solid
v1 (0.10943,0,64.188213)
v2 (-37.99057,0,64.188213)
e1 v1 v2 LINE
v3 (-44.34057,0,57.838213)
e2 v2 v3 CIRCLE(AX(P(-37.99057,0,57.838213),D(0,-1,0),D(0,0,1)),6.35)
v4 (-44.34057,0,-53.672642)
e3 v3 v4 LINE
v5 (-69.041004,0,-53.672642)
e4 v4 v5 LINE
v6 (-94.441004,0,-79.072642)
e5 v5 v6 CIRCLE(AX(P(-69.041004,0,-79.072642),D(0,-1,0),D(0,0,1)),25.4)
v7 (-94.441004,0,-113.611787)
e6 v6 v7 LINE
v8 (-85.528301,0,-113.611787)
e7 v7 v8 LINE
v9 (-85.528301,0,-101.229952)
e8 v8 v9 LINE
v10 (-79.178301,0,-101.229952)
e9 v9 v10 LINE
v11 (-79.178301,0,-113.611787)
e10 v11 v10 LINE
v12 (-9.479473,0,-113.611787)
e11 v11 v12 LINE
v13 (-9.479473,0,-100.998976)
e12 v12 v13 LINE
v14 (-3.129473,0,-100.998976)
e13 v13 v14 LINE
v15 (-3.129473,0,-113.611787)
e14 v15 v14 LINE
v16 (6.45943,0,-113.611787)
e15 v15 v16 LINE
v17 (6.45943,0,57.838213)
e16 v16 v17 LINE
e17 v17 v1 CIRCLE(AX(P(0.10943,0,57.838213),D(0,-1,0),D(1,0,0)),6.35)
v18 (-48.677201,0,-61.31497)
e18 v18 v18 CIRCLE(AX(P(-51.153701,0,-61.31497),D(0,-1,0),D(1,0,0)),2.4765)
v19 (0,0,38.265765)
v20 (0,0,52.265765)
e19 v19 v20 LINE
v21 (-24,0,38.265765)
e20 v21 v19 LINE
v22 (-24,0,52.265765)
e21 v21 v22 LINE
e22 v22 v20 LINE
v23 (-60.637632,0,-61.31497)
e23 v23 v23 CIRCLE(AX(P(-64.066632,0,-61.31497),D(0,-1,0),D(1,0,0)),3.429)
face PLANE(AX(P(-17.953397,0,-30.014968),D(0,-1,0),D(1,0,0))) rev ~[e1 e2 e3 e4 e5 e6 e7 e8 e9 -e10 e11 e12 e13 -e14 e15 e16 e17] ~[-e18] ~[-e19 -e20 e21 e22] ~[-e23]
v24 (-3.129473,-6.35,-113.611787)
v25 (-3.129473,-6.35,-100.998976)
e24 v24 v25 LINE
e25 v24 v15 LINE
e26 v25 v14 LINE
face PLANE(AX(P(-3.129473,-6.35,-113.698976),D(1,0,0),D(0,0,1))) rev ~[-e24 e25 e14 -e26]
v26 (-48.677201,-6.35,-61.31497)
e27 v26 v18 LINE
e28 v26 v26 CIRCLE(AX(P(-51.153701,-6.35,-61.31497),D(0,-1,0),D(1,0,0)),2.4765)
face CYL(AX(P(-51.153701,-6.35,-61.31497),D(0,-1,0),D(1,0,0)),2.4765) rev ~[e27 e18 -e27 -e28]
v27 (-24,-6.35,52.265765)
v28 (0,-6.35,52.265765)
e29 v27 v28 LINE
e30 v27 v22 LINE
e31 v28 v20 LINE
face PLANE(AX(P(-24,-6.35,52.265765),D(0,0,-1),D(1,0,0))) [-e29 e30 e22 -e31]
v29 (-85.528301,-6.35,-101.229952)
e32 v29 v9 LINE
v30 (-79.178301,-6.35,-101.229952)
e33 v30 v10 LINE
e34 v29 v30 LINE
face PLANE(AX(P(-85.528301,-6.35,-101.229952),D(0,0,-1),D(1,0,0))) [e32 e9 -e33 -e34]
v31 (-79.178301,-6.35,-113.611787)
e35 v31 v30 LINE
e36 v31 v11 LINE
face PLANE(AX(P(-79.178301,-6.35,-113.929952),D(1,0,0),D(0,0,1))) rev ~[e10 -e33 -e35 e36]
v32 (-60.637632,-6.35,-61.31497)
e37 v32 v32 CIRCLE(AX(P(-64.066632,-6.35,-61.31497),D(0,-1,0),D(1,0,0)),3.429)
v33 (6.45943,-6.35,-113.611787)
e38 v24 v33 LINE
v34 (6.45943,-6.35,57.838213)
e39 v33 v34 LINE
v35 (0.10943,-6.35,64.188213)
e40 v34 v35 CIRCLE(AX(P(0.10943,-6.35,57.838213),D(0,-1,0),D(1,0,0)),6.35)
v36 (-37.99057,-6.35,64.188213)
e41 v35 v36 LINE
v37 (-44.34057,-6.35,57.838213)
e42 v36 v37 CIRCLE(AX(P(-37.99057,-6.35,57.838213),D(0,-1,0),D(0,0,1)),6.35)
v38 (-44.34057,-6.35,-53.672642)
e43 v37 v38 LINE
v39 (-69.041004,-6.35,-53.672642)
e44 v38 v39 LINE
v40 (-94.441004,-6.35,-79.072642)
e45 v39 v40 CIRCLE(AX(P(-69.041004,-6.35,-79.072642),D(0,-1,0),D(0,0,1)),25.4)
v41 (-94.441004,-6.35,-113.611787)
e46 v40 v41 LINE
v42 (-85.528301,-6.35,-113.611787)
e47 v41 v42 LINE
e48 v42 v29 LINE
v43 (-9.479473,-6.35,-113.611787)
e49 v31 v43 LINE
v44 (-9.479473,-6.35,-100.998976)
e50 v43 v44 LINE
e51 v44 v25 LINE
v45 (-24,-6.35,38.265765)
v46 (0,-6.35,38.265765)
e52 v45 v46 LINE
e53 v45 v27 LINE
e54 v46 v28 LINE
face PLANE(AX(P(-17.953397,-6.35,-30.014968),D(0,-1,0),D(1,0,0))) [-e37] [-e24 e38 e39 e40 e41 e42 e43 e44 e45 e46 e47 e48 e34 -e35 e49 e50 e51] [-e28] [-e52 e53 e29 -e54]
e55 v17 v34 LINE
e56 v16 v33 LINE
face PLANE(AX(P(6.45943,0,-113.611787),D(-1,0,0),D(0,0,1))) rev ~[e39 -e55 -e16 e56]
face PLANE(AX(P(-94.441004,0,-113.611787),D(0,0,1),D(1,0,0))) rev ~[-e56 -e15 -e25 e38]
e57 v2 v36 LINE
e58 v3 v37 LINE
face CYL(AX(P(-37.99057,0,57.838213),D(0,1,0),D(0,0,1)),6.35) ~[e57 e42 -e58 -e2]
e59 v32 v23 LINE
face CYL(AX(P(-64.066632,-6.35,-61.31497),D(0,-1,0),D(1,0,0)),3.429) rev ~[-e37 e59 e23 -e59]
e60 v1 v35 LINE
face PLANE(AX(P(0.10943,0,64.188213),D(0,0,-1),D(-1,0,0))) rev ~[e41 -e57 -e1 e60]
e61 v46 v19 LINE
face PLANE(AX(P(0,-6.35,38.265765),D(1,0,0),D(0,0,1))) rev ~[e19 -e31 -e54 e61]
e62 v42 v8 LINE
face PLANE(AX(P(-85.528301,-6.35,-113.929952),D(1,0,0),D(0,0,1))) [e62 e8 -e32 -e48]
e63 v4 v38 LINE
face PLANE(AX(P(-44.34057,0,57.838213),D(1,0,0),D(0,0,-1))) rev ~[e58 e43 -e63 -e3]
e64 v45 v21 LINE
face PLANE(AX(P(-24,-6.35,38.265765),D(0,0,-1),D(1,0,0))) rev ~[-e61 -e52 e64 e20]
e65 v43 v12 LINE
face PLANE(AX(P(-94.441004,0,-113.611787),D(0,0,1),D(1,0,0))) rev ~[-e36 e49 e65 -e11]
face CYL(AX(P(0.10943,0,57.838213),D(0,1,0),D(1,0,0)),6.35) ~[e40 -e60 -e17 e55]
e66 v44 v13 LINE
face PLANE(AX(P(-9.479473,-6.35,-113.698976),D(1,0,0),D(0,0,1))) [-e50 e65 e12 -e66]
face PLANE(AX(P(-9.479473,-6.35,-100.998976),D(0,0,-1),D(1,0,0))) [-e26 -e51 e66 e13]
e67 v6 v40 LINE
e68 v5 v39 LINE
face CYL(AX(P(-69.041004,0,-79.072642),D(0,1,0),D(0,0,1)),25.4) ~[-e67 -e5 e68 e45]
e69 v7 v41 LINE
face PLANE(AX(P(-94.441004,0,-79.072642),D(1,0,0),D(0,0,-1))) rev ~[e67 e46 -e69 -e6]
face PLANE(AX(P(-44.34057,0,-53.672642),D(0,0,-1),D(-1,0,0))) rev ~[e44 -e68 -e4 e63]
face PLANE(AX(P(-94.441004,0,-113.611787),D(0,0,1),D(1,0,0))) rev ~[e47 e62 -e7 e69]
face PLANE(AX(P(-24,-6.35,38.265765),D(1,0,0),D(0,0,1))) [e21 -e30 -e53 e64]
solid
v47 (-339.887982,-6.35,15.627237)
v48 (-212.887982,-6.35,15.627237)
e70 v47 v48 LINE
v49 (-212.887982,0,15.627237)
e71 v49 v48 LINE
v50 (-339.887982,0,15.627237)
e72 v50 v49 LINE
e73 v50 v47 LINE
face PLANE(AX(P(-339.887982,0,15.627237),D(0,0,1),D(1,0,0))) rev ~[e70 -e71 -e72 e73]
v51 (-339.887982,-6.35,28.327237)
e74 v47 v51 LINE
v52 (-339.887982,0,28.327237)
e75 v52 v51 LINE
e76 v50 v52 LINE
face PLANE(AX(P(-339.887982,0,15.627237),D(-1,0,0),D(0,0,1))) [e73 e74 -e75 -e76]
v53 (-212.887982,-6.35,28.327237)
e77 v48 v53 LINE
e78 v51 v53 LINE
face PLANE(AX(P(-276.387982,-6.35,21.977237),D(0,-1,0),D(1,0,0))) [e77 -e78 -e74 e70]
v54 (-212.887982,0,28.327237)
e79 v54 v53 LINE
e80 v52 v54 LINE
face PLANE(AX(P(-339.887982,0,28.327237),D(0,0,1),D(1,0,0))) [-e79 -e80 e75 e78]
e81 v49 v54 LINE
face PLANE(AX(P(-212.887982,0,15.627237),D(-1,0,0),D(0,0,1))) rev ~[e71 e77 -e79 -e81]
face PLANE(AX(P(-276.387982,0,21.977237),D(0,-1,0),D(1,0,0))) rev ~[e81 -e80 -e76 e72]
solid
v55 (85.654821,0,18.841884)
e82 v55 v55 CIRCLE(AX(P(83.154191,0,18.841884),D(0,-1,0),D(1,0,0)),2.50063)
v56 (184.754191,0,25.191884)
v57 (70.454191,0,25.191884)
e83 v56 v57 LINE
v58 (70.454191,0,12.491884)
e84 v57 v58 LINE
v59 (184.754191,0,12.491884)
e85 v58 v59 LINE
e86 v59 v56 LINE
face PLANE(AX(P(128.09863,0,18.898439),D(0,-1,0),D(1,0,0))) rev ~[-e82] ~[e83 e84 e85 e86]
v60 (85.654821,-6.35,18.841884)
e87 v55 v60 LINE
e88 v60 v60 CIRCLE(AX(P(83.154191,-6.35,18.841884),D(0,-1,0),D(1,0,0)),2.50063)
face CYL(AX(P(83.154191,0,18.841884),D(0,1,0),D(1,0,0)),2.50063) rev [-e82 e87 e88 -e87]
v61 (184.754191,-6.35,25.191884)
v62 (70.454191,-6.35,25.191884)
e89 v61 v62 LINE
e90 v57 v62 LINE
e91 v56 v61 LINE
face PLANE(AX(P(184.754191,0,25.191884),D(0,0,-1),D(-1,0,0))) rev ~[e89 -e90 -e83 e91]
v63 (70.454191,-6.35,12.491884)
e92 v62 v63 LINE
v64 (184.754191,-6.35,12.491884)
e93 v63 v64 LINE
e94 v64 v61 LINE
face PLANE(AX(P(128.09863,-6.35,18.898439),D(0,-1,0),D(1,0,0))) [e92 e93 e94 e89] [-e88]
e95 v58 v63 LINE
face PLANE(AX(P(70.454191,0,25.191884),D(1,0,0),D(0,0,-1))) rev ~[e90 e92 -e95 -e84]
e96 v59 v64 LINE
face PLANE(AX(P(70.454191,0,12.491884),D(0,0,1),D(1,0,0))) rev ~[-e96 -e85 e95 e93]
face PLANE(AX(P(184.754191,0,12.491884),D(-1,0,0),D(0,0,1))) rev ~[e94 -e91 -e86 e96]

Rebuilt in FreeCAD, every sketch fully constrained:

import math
import FreeCAD as App
import Part
import Sketcher
from FreeCAD import Vector
Q = App.Units.Quantity

doc = App.newDocument("Part")
body = doc.addObject("PartDesign::Body", "Body")

sketch1 = body.newObject("Sketcher::SketchObject", "Sketch")
sketch1.AttachmentSupport = (doc.getObject("XZ_Plane"), [""])
sketch1.MapMode = "FlatFace"
sketch1.addGeometry(Part.LineSegment(Vector(0, 64, 0), Vector(-38, 64, 0)), False)
sketch1.addGeometry(Part.ArcOfCircle(Part.Circle(Vector(-38, 58, 0), Vector(0, 0, 1), 6), math.radians(90), math.radians(180)), False)
sketch1.addGeometry(Part.LineSegment(Vector(-44, 58, 0), Vector(-44, -54, 0)), False)
sketch1.addGeometry(Part.LineSegment(Vector(-44, -54, 0), Vector(-69, -54, 0)), False)
sketch1.addGeometry(Part.ArcOfCircle(Part.Circle(Vector(-69, -79, 0), Vector(0, 0, 1), 25), math.radians(90), math.radians(180)), False)
sketch1.addGeometry(Part.LineSegment(Vector(-94, -79, 0), Vector(-94, -114, 0)), False)
sketch1.addGeometry(Part.LineSegment(Vector(-94, -114, 0), Vector(6, -114, 0)), False)
sketch1.addGeometry(Part.LineSegment(Vector(6, -114, 0), Vector(6, 58, 0)), False)
sketch1.addGeometry(Part.ArcOfCircle(Part.Circle(Vector(0, 58, 0), Vector(0, 0, 1), 6), math.radians(0), math.radians(90)), False)
sketch1.addConstraint(Sketcher.Constraint("Tangent", 0, 2, 1, 1))
sketch1.addConstraint(Sketcher.Constraint("Tangent", 1, 2, 2, 1))
sketch1.addConstraint(Sketcher.Constraint("Coincident", 2, 2, 3, 1))
sketch1.addConstraint(Sketcher.Constraint("Tangent", 3, 2, 4, 1))
sketch1.addConstraint(Sketcher.Constraint("Tangent", 4, 2, 5, 1))
sketch1.addConstraint(Sketcher.Constraint("Coincident", 5, 2, 6, 1))
sketch1.addConstraint(Sketcher.Constraint("Coincident", 6, 2, 7, 1))
sketch1.addConstraint(Sketcher.Constraint("Tangent", 7, 2, 8, 1))
sketch1.addConstraint(Sketcher.Constraint("Tangent", 8, 2, 0, 1))
sketch1.addConstraint(Sketcher.Constraint("Horizontal", 0))
sketch1.addConstraint(Sketcher.Constraint("Vertical", 2))
sketch1.addConstraint(Sketcher.Constraint("Horizontal", 3))
sketch1.addConstraint(Sketcher.Constraint("Vertical", 5))
sketch1.addConstraint(Sketcher.Constraint("Horizontal", 6))
sketch1.addConstraint(Sketcher.Constraint("Vertical", 7))
sketch1.addConstraint(Sketcher.Constraint("Equal", 1, 8))
sketch1.addConstraint(Sketcher.Constraint("Radius", 4, Q("1 in")))
sketch1.addConstraint(Sketcher.Constraint("Radius", 1, Q("0.25 in")))
sketch1.addConstraint(Sketcher.Constraint("DistanceX", 0, 2, 0, 1, Q("1.5 in")))
sketch1.addConstraint(Sketcher.Constraint("DistanceY", 7, 1, 7, 2, Q("6.75 in")))
sketch1.addConstraint(Sketcher.Constraint("DistanceX", 3, 2, 3, 1, 24.700434))
sketch1.addConstraint(Sketcher.Constraint("DistanceY", 2, 2, 2, 1, 111.510854))
sketch1.addConstraint(Sketcher.Constraint("DistanceX", 1, 3, -1, 1, 37.99057))
sketch1.addConstraint(Sketcher.Constraint("DistanceY", 4, 3, -1, 1, 79.072642))
pad1 = body.newObject("PartDesign::Pad", "Pad")
pad1.Profile = sketch1
pad1.Length = Q("0.25 in")

sketch2 = body.newObject("Sketcher::SketchObject", "Sketch001")
sketch2.AttachmentSupport = (doc.getObject("XZ_Plane"), [""])
sketch2.MapMode = "FlatFace"
sketch2.AttachmentOffset = App.Placement(Vector(0, 0, 0.25 * 25.4), App.Rotation())
sketch2.addGeometry(Part.LineSegment(Vector(-86, -101, 0), Vector(-86, -114, 0)), False)
sketch2.addGeometry(Part.LineSegment(Vector(-86, -114, 0), Vector(-79, -114, 0)), False)
sketch2.addGeometry(Part.LineSegment(Vector(-79, -114, 0), Vector(-79, -101, 0)), False)
sketch2.addGeometry(Part.LineSegment(Vector(-79, -101, 0), Vector(-86, -101, 0)), False)
sketch2.addGeometry(Part.LineSegment(Vector(-9, -101, 0), Vector(-9, -114, 0)), False)
sketch2.addGeometry(Part.LineSegment(Vector(-9, -114, 0), Vector(-3, -114, 0)), False)
sketch2.addGeometry(Part.LineSegment(Vector(-3, -114, 0), Vector(-3, -101, 0)), False)
sketch2.addGeometry(Part.LineSegment(Vector(-3, -101, 0), Vector(-9, -101, 0)), False)
sketch2.addConstraint(Sketcher.Constraint("Coincident", 0, 2, 1, 1))
sketch2.addConstraint(Sketcher.Constraint("Coincident", 1, 2, 2, 1))
sketch2.addConstraint(Sketcher.Constraint("Coincident", 2, 2, 3, 1))
sketch2.addConstraint(Sketcher.Constraint("Coincident", 3, 2, 0, 1))
sketch2.addConstraint(Sketcher.Constraint("Coincident", 4, 2, 5, 1))
sketch2.addConstraint(Sketcher.Constraint("Coincident", 5, 2, 6, 1))
sketch2.addConstraint(Sketcher.Constraint("Coincident", 6, 2, 7, 1))
sketch2.addConstraint(Sketcher.Constraint("Coincident", 7, 2, 4, 1))
sketch2.addConstraint(Sketcher.Constraint("Vertical", 0))
sketch2.addConstraint(Sketcher.Constraint("Horizontal", 1))
sketch2.addConstraint(Sketcher.Constraint("Vertical", 2))
sketch2.addConstraint(Sketcher.Constraint("Horizontal", 3))
sketch2.addConstraint(Sketcher.Constraint("Vertical", 4))
sketch2.addConstraint(Sketcher.Constraint("Horizontal", 5))
sketch2.addConstraint(Sketcher.Constraint("Vertical", 6))
sketch2.addConstraint(Sketcher.Constraint("Horizontal", 7))
sketch2.addConstraint(Sketcher.Constraint("Equal", 3, 5))
sketch2.addConstraint(Sketcher.Constraint("Equal", 2, 4))
sketch2.addConstraint(Sketcher.Constraint("DistanceY", 0, 2, 0, 1, Q("0.5 in")))
sketch2.addConstraint(Sketcher.Constraint("DistanceX", 1, 1, 1, 2, Q("0.25 in")))
sketch2.addConstraint(Sketcher.Constraint("DistanceX", 0, 2, -1, 1, 85.528301))
sketch2.addConstraint(Sketcher.Constraint("DistanceY", 0, 2, -1, 1, 113.929952))
sketch2.addConstraint(Sketcher.Constraint("DistanceX", 1, 2, 4, 2, 69.698828))
sketch2.addConstraint(Sketcher.Constraint("DistanceY", 4, 2, -1, 1, 113.698976))
pocket1 = body.newObject("PartDesign::Pocket", "Pocket")
pocket1.Profile = sketch2
pocket1.Length = Q("0.74 in")

sketch3 = body.newObject("Sketcher::SketchObject", "Sketch002")
sketch3.AttachmentSupport = (doc.getObject("XZ_Plane"), [""])
sketch3.MapMode = "FlatFace"
sketch3.AttachmentOffset = App.Placement(Vector(0, 0, 0.25 * 25.4), App.Rotation())
sketch3.addGeometry(Part.Circle(Vector(-51.2, -61.3, 0), Vector(0, 0, 1), 2.5), False)
sketch3.addGeometry(Part.Circle(Vector(-64.1, -61.3, 0), Vector(0, 0, 1), 3.4), False)
sketch3.addConstraint(Sketcher.Constraint("Horizontal", 0, 3, 1, 3))
sketch3.addConstraint(Sketcher.Constraint("Diameter", 1, Q("0.27 in")))
sketch3.addConstraint(Sketcher.Constraint("Diameter", 0, Q("0.195 in")))
sketch3.addConstraint(Sketcher.Constraint("DistanceX", 0, 3, -1, 1, 51.153701))
sketch3.addConstraint(Sketcher.Constraint("DistanceY", 0, 3, -1, 1, 61.31497))
sketch3.addConstraint(Sketcher.Constraint("DistanceX", 1, 3, 0, 3, 12.912931))
pocket2 = body.newObject("PartDesign::Pocket", "Pocket001")
pocket2.Profile = sketch3
pocket2.Length = Q("0.42 in")

sketch4 = body.newObject("Sketcher::SketchObject", "Sketch003")
sketch4.AttachmentSupport = (doc.getObject("XZ_Plane"), [""])
sketch4.MapMode = "FlatFace"
sketch4.AttachmentOffset = App.Placement(Vector(0, 0, 0.25 * 25.4), App.Rotation())
sketch4.addGeometry(Part.LineSegment(Vector(-24, 52, 0), Vector(-24, 38, 0)), False)
sketch4.addGeometry(Part.LineSegment(Vector(-24, 38, 0), Vector(0, 38, 0)), False)
sketch4.addGeometry(Part.LineSegment(Vector(0, 38, 0), Vector(0, 52, 0)), False)
sketch4.addGeometry(Part.LineSegment(Vector(0, 52, 0), Vector(-24, 52, 0)), False)
sketch4.addConstraint(Sketcher.Constraint("Coincident", 0, 2, 1, 1))
sketch4.addConstraint(Sketcher.Constraint("Coincident", 1, 2, 2, 1))
sketch4.addConstraint(Sketcher.Constraint("Coincident", 2, 2, 3, 1))
sketch4.addConstraint(Sketcher.Constraint("Coincident", 3, 2, 0, 1))
sketch4.addConstraint(Sketcher.Constraint("Vertical", 0))
sketch4.addConstraint(Sketcher.Constraint("Horizontal", 1))
sketch4.addConstraint(Sketcher.Constraint("Vertical", 2))
sketch4.addConstraint(Sketcher.Constraint("Horizontal", 3))
sketch4.addConstraint(Sketcher.Constraint("PointOnObject", 1, 2, -2))
sketch4.addConstraint(Sketcher.Constraint("DistanceX", 1, 1, 1, 2, 24.0))
sketch4.addConstraint(Sketcher.Constraint("DistanceY", 0, 2, 0, 1, 14.0))
sketch4.addConstraint(Sketcher.Constraint("DistanceY", -1, 1, 0, 2, 38.265765))
pocket3 = body.newObject("PartDesign::Pocket", "Pocket002")
pocket3.Profile = sketch4
pocket3.Length = 12.6
body2 = doc.addObject("PartDesign::Body", "Body001")

sketch5 = body2.newObject("Sketcher::SketchObject", "Sketch004")
sketch5.AttachmentSupport = (doc.getObject("XZ_Plane001"), [""])
sketch5.MapMode = "FlatFace"
sketch5.addGeometry(Part.LineSegment(Vector(70.5, 25.2, 0), Vector(70.5, 12.5, 0)), False)
sketch5.addGeometry(Part.LineSegment(Vector(70.5, 12.5, 0), Vector(184.8, 12.5, 0)), False)
sketch5.addGeometry(Part.LineSegment(Vector(184.8, 12.5, 0), Vector(184.8, 25.2, 0)), False)
sketch5.addGeometry(Part.LineSegment(Vector(184.8, 25.2, 0), Vector(70.5, 25.2, 0)), False)
sketch5.addGeometry(Part.Circle(Vector(83.2, 18.8, 0), Vector(0, 0, 1), 2.5), False)
sketch5.addConstraint(Sketcher.Constraint("Coincident", 0, 2, 1, 1))
sketch5.addConstraint(Sketcher.Constraint("Coincident", 1, 2, 2, 1))
sketch5.addConstraint(Sketcher.Constraint("Coincident", 2, 2, 3, 1))
sketch5.addConstraint(Sketcher.Constraint("Coincident", 3, 2, 0, 1))
sketch5.addConstraint(Sketcher.Constraint("Vertical", 0))
sketch5.addConstraint(Sketcher.Constraint("Horizontal", 1))
sketch5.addConstraint(Sketcher.Constraint("Vertical", 2))
sketch5.addConstraint(Sketcher.Constraint("Horizontal", 3))
sketch5.addConstraint(Sketcher.Constraint("DistanceX", 1, 1, 1, 2, Q("4.5 in")))
sketch5.addConstraint(Sketcher.Constraint("DistanceY", 0, 2, 0, 1, Q("0.5 in")))
sketch5.addConstraint(Sketcher.Constraint("DistanceX", 4, 3, 1, 2, Q("4 in")))
sketch5.addConstraint(Sketcher.Constraint("Diameter", 4, Q("0.1969 in")))
sketch5.addConstraint(Sketcher.Constraint("DistanceY", 0, 2, 4, 3, Q("0.25 in")))
sketch5.addConstraint(Sketcher.Constraint("DistanceX", -1, 1, 4, 3, 83.154191))
sketch5.addConstraint(Sketcher.Constraint("DistanceY", -1, 1, 4, 3, 18.841884))
pad2 = body2.newObject("PartDesign::Pad", "Pad001")
pad2.Profile = sketch5
pad2.Length = Q("0.25 in")
body3 = doc.addObject("PartDesign::Body", "Body002")

sketch6 = body3.newObject("Sketcher::SketchObject", "Sketch005")
sketch6.AttachmentSupport = (doc.getObject("XZ_Plane002"), [""])
sketch6.MapMode = "FlatFace"
sketch6.addGeometry(Part.LineSegment(Vector(-340, 28, 0), Vector(-340, 16, 0)), False)
sketch6.addGeometry(Part.LineSegment(Vector(-340, 16, 0), Vector(-213, 16, 0)), False)
sketch6.addGeometry(Part.LineSegment(Vector(-213, 16, 0), Vector(-213, 28, 0)), False)
sketch6.addGeometry(Part.LineSegment(Vector(-213, 28, 0), Vector(-340, 28, 0)), False)
sketch6.addConstraint(Sketcher.Constraint("Coincident", 0, 2, 1, 1))
sketch6.addConstraint(Sketcher.Constraint("Coincident", 1, 2, 2, 1))
sketch6.addConstraint(Sketcher.Constraint("Coincident", 2, 2, 3, 1))
sketch6.addConstraint(Sketcher.Constraint("Coincident", 3, 2, 0, 1))
sketch6.addConstraint(Sketcher.Constraint("Vertical", 0))
sketch6.addConstraint(Sketcher.Constraint("Horizontal", 1))
sketch6.addConstraint(Sketcher.Constraint("Vertical", 2))
sketch6.addConstraint(Sketcher.Constraint("Horizontal", 3))
sketch6.addConstraint(Sketcher.Constraint("DistanceX", 1, 1, 1, 2, Q("5 in")))
sketch6.addConstraint(Sketcher.Constraint("DistanceY", 0, 2, 0, 1, Q("0.5 in")))
sketch6.addConstraint(Sketcher.Constraint("DistanceX", 0, 2, -1, 1, 339.887982))
sketch6.addConstraint(Sketcher.Constraint("DistanceY", -1, 1, 0, 2, 15.627237))
pad3 = body3.newObject("PartDesign::Pad", "Pad002")
pad3.Profile = sketch6
pad3.Length = Q("0.25 in")

doc.recompute()
